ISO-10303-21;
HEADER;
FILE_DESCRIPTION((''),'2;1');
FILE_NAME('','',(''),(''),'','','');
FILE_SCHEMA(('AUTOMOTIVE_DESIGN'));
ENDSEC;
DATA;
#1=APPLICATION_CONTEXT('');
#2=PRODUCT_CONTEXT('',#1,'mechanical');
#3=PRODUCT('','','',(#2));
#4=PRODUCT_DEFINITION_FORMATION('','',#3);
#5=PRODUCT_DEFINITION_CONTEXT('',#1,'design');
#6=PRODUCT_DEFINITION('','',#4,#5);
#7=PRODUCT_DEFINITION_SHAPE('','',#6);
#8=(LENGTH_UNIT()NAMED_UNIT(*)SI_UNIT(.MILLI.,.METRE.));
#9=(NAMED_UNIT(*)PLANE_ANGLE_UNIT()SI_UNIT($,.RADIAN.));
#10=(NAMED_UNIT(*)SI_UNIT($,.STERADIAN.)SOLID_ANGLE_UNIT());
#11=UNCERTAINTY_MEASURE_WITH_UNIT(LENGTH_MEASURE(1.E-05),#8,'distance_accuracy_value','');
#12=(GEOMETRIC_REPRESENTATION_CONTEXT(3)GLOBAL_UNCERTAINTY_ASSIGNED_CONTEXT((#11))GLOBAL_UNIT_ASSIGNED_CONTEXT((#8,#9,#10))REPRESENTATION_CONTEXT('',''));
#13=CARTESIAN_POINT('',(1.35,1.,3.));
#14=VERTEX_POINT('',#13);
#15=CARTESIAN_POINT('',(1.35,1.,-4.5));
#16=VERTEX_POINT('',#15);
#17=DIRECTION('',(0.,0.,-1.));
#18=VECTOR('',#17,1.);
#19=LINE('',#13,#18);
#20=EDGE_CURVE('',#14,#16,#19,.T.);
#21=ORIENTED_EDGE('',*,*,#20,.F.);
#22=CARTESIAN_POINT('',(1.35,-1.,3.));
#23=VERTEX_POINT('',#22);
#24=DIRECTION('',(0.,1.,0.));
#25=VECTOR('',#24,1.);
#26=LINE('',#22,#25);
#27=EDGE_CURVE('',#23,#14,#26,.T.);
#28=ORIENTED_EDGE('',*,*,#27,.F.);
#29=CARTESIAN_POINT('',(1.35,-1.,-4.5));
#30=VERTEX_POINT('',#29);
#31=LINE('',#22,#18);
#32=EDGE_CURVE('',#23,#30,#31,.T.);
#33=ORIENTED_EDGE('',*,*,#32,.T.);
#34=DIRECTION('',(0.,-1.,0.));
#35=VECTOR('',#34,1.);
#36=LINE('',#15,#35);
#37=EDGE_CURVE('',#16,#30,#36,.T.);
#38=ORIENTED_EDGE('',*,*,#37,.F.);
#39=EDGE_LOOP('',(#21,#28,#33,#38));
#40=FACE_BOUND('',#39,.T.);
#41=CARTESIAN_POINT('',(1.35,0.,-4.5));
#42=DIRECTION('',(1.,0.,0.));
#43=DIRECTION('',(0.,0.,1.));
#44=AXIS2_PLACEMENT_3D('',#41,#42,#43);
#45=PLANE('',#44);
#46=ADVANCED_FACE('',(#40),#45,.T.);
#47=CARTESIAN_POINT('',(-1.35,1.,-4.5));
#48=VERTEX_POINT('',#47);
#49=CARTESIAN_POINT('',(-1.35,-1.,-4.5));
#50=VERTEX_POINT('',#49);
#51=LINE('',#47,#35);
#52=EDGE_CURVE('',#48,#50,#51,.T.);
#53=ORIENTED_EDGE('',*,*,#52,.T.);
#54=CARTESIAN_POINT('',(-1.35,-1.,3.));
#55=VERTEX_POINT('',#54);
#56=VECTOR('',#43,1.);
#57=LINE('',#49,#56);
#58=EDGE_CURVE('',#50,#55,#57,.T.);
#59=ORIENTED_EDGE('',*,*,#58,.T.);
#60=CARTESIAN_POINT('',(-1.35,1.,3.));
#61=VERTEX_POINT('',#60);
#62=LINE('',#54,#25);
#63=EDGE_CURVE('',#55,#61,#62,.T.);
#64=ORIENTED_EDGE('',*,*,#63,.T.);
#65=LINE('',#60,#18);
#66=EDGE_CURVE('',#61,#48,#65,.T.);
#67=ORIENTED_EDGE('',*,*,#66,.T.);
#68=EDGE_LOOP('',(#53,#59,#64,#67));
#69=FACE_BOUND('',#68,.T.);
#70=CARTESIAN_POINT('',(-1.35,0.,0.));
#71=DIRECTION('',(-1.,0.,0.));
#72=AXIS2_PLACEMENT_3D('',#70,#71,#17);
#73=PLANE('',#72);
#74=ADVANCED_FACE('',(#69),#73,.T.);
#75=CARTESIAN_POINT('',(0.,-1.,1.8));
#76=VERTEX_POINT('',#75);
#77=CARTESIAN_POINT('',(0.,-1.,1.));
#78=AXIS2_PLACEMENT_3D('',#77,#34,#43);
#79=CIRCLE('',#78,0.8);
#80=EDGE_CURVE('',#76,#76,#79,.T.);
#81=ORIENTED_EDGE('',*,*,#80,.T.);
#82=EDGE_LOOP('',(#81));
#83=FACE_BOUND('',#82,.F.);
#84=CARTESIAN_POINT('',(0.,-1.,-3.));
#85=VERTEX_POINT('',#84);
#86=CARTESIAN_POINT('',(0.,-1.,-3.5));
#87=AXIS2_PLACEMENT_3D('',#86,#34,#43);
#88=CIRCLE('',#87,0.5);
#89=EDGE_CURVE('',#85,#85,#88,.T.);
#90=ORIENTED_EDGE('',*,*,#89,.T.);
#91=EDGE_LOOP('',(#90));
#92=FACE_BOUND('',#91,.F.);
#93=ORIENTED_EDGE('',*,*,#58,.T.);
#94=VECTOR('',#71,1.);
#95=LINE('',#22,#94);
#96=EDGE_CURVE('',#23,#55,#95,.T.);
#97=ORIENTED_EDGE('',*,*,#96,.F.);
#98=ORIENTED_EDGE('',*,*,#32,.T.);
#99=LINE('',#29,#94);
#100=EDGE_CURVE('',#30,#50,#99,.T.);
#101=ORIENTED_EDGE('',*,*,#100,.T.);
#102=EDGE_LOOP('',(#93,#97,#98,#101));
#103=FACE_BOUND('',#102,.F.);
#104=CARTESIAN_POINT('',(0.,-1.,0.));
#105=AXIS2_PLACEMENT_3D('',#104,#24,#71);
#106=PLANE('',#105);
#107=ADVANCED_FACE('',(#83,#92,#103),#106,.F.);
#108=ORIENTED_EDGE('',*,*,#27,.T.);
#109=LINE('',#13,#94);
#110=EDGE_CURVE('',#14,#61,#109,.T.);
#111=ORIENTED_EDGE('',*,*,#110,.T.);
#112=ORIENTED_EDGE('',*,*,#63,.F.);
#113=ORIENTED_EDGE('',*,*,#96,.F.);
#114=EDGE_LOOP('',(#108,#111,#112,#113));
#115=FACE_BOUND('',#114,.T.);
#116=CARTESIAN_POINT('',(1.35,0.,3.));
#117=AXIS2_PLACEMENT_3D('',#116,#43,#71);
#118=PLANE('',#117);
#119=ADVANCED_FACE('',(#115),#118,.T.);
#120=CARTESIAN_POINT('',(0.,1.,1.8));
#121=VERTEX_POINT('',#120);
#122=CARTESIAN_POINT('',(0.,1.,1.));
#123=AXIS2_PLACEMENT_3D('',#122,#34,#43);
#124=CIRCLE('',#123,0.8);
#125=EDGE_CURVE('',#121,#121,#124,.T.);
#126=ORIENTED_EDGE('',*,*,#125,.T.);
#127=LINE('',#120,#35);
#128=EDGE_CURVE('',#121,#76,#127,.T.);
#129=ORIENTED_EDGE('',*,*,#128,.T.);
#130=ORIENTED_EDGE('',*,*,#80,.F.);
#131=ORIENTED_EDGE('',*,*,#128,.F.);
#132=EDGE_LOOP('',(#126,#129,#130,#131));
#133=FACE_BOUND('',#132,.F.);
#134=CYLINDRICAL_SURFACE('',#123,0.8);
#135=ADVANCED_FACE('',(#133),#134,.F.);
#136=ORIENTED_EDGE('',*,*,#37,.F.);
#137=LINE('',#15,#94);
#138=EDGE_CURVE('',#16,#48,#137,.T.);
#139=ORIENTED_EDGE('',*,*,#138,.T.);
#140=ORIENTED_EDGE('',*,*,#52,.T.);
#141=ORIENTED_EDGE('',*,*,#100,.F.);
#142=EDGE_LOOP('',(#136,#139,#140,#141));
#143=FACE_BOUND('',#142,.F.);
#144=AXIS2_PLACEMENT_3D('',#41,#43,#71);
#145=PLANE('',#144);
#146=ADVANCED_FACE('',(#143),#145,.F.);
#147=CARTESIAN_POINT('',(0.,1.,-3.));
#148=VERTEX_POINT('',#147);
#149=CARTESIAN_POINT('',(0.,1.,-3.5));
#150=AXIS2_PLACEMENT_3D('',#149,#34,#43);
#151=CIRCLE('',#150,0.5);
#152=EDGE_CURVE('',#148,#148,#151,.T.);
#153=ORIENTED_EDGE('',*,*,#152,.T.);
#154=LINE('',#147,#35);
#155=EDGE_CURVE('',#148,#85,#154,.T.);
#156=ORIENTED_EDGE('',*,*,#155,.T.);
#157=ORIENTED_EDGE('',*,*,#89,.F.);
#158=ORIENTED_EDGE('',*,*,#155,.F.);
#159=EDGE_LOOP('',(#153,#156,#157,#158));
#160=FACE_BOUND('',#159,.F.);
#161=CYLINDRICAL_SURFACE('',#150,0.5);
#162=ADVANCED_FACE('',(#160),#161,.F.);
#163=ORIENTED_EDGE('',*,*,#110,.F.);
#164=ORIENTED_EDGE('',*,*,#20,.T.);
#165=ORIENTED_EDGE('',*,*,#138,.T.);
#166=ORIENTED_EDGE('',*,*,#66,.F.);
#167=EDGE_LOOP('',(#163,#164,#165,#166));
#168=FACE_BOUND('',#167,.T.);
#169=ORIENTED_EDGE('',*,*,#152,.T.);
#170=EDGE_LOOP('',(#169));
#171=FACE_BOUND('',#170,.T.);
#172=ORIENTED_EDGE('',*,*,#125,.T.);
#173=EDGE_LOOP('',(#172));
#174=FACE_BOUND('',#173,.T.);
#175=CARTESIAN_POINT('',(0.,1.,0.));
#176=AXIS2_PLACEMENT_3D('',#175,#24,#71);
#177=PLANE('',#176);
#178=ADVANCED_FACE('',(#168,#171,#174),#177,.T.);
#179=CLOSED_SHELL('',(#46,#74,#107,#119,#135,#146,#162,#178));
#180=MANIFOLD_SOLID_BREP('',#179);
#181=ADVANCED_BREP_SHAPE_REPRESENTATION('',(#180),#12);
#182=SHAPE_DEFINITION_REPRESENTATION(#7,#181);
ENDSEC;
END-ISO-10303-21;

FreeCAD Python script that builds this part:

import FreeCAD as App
import Part
import Sketcher
from FreeCAD import Vector
Q = App.Units.Quantity


def add_polygon(sketch, points):
    """Adds a closed chain of lines whose ends are joined by coincident constraints."""
    first, n = sketch.GeometryCount, len(points)
    for a, b in zip(points, points[1:] + points[:1]):
        sketch.addGeometry(Part.LineSegment(App.Vector(*a, 0), App.Vector(*b, 0)), False)
    for i in range(n):
        sketch.addConstraint(Sketcher.Constraint("Coincident", first + i, 2, first + (i + 1) % n, 1))

doc = App.newDocument("Part")
body = doc.addObject("PartDesign::Body", "Body")

sketch1 = doc.addObject("Sketcher::SketchObject", "Sketch")
body.addObject(sketch1)
sketch1.AttachmentSupport = (doc.XZ_Plane, [""])
sketch1.MapMode = "FlatFace"
add_polygon(sketch1, [(-1.4, -4.5), (-1.4, 3), (1.4, 3), (1.4, -4.5)])
sketch1.addConstraint([
    Sketcher.Constraint("Vertical", 0),
    Sketcher.Constraint("Horizontal", 1),
    Sketcher.Constraint("Vertical", 2),
    Sketcher.Constraint("Horizontal", 3),
    Sketcher.Constraint("DistanceX", 1, 1, 1, 2, Q("2.7 mm")),
    Sketcher.Constraint("DistanceY", 0, 1, 0, 2, Q("7.5 mm")),
    Sketcher.Constraint("DistanceX", 0, 2, -1, 1, Q("1.35 mm")),
    Sketcher.Constraint("DistanceY", -1, 1, 0, 2, Q("3 mm")),
])
pad1 = doc.addObject("PartDesign::Pad", "Pad")
body.addObject(pad1)
pad1.Profile = sketch1
pad1.Length = 2
pad1.Midplane = True

sketch2 = doc.addObject("Sketcher::SketchObject", "Sketch001")
body.addObject(sketch2)
sketch2.AttachmentSupport = (doc.XZ_Plane, [""])
sketch2.MapMode = "FlatFace"
sketch2.AttachmentOffset = App.Placement(Vector(0, 0, -1), App.Rotation())
sketch2.addGeometry(Part.Circle(Vector(0, 1, 0), Vector(0, 0, 1), 0.8), False)
sketch2.addConstraint([
    Sketcher.Constraint("PointOnObject", 0, 3, -2),
    Sketcher.Constraint("Diameter", 0, Q("1.6 mm")),
    Sketcher.Constraint("DistanceY", -1, 1, 0, 3, Q("1 mm")),
])
doc.recompute()
hole = doc.addObject("PartDesign::Hole", "Hole")
body.addObject(hole)
hole.Profile = sketch2
hole.ThreadType = "None"
hole.Diameter = 1.6
hole.DepthType = "ThroughAll"
hole.Reversed = True

sketch3 = doc.addObject("Sketcher::SketchObject", "Sketch002")
body.addObject(sketch3)
sketch3.AttachmentSupport = (doc.XZ_Plane, [""])
sketch3.MapMode = "FlatFace"
sketch3.AttachmentOffset = App.Placement(Vector(0, 0, -1), App.Rotation())
sketch3.addGeometry(Part.Circle(Vector(0, -3.5, 0), Vector(0, 0, 1), 0.5), False)
sketch3.addConstraint([
    Sketcher.Constraint("PointOnObject", 0, 3, -2),
    Sketcher.Constraint("Diameter", 0, Q("1 mm")),
    Sketcher.Constraint("DistanceY", 0, 3, -1, 1, Q("3.5 mm")),
])
doc.recompute()
hole2 = doc.addObject("PartDesign::Hole", "Hole001")
body.addObject(hole2)
hole2.Profile = sketch3
hole2.ThreadType = "None"
hole2.Diameter = 1
hole2.DepthType = "ThroughAll"
hole2.Reversed = True

doc.recompute()
